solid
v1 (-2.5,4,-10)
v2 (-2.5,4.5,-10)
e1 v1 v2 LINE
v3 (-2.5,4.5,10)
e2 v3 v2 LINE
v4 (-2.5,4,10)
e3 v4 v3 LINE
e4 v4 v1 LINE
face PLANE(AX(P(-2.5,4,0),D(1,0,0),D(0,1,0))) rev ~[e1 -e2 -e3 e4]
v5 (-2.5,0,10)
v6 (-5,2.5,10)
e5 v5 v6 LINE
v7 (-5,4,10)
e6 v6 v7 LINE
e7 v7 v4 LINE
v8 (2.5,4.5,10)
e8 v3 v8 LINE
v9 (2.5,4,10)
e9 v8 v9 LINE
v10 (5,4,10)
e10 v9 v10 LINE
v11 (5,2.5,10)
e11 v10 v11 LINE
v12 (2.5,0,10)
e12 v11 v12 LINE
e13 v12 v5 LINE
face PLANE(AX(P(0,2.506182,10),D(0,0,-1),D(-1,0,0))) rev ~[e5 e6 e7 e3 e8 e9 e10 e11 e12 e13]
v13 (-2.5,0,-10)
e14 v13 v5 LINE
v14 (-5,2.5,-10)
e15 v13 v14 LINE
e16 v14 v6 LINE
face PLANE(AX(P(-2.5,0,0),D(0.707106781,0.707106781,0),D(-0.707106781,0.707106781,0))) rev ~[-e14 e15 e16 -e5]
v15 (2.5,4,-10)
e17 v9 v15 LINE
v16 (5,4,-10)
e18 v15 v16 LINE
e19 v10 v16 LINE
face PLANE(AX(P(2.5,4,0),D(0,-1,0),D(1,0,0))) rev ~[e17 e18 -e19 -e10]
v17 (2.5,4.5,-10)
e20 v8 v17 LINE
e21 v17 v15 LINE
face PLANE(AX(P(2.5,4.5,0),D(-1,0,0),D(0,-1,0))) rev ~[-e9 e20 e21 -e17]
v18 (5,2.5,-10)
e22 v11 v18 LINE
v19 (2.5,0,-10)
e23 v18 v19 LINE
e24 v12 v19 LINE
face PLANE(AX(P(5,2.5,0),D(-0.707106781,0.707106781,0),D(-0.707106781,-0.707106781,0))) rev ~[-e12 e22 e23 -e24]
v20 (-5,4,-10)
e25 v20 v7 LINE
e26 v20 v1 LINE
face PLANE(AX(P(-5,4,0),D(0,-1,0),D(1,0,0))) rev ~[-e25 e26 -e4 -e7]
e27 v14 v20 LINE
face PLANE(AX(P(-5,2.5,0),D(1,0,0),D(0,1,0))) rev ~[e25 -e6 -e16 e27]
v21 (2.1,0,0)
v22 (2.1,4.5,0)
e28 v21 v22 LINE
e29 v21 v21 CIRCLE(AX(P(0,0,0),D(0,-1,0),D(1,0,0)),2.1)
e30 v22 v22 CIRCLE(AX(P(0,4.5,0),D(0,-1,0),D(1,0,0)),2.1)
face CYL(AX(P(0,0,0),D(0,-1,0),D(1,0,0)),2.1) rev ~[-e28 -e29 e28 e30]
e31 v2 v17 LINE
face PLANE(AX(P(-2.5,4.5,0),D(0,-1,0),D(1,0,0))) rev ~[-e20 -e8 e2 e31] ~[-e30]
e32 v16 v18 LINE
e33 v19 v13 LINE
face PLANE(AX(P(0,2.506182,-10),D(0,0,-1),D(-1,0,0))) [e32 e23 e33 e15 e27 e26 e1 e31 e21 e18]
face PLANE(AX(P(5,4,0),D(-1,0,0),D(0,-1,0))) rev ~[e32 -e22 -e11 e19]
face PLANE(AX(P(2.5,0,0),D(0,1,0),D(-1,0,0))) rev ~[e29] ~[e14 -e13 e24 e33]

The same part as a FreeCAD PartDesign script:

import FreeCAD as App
import Part
import Sketcher

V = App.Vector
Q = App.Units.Quantity

doc = App.newDocument("Part")
body = doc.addObject("PartDesign::Body", "Body")

sketch1 = body.newObject("Sketcher::SketchObject", "Sketch")
sketch1.AttachmentSupport = (doc.getObject("XY_Plane"), [""])
sketch1.MapMode = "FlatFace"
sketch1.addGeometry([
    Part.LineSegment(V(-2.5, 4, 0), V(-5, 4, 0)),
    Part.LineSegment(V(-5, 4, 0), V(-5, 2.5, 0)),
    Part.LineSegment(V(-5, 2.5, 0), V(-2.5, 0, 0)),
    Part.LineSegment(V(-2.5, 0, 0), V(2.5, 0, 0)),
    Part.LineSegment(V(2.5, 0, 0), V(5, 2.5, 0)),
    Part.LineSegment(V(5, 2.5, 0), V(5, 4, 0)),
    Part.LineSegment(V(5, 4, 0), V(2.5, 4, 0)),
    Part.LineSegment(V(2.5, 4, 0), V(2.5, 4.5, 0)),
    Part.LineSegment(V(2.5, 4.5, 0), V(-2.5, 4.5, 0)),
    Part.LineSegment(V(-2.5, 4.5, 0), V(-2.5, 4, 0)),
], False)
sketch1.addConstraint([
    Sketcher.Constraint("Coincident", 0, 2, 1, 1),
    Sketcher.Constraint("Coincident", 1, 2, 2, 1),
    Sketcher.Constraint("Coincident", 2, 2, 3, 1),
    Sketcher.Constraint("Coincident", 3, 2, 4, 1),
    Sketcher.Constraint("Coincident", 4, 2, 5, 1),
    Sketcher.Constraint("Coincident", 5, 2, 6, 1),
    Sketcher.Constraint("Coincident", 6, 2, 7, 1),
    Sketcher.Constraint("Coincident", 7, 2, 8, 1),
    Sketcher.Constraint("Coincident", 8, 2, 9, 1),
    Sketcher.Constraint("Coincident", 9, 2, 0, 1),
    Sketcher.Constraint("Horizontal", 0),
    Sketcher.Constraint("Vertical", 1),
    Sketcher.Constraint("Horizontal", 3),
    Sketcher.Constraint("Vertical", 5),
    Sketcher.Constraint("Horizontal", 6),
    Sketcher.Constraint("Vertical", 7),
    Sketcher.Constraint("Horizontal", 8),
    Sketcher.Constraint("Vertical", 9),
    Sketcher.Constraint("Symmetric", 2, 2, 3, 2, -1, 1),
    Sketcher.Constraint("Symmetric", 1, 2, 4, 2, -2),
    Sketcher.Constraint("Symmetric", 6, 2, 9, 2, -2),
    Sketcher.Constraint("Perpendicular", 2, 4),
    Sketcher.Constraint("Vertical", 3, 2, 6, 2),
    Sketcher.Constraint("DistanceX", 3, 1, 3, 2, Q("5 mm")),
    Sketcher.Constraint("DistanceX", 0, 2, 0, 1, Q("2.5 mm")),
    Sketcher.Constraint("DistanceY", 1, 2, 1, 1, Q("1.5 mm")),
    Sketcher.Constraint("DistanceY", 7, 1, 7, 2, Q("0.5 mm")),
])
pad1 = body.newObject("PartDesign::Pad", "Pad")
pad1.Profile = sketch1
pad1.Length = 20
pad1.Midplane = True

sketch2 = body.newObject("Sketcher::SketchObject", "Sketch001")
sketch2.AttachmentSupport = (doc.getObject("XZ_Plane"), [""])
sketch2.MapMode = "FlatFace"
sketch2.addGeometry(Part.Circle(V(0, 0, 0), V(0, 0, 1), 2.1), False)
sketch2.addConstraint([
    Sketcher.Constraint("Coincident", 0, 3, -1, 1),
    Sketcher.Constraint("Diameter", 0, Q("4.2 mm")),
])
pocket1 = body.newObject("PartDesign::Pocket", "Pocket")
pocket1.Profile = sketch2
pocket1.Length = 5

doc.recompute()
